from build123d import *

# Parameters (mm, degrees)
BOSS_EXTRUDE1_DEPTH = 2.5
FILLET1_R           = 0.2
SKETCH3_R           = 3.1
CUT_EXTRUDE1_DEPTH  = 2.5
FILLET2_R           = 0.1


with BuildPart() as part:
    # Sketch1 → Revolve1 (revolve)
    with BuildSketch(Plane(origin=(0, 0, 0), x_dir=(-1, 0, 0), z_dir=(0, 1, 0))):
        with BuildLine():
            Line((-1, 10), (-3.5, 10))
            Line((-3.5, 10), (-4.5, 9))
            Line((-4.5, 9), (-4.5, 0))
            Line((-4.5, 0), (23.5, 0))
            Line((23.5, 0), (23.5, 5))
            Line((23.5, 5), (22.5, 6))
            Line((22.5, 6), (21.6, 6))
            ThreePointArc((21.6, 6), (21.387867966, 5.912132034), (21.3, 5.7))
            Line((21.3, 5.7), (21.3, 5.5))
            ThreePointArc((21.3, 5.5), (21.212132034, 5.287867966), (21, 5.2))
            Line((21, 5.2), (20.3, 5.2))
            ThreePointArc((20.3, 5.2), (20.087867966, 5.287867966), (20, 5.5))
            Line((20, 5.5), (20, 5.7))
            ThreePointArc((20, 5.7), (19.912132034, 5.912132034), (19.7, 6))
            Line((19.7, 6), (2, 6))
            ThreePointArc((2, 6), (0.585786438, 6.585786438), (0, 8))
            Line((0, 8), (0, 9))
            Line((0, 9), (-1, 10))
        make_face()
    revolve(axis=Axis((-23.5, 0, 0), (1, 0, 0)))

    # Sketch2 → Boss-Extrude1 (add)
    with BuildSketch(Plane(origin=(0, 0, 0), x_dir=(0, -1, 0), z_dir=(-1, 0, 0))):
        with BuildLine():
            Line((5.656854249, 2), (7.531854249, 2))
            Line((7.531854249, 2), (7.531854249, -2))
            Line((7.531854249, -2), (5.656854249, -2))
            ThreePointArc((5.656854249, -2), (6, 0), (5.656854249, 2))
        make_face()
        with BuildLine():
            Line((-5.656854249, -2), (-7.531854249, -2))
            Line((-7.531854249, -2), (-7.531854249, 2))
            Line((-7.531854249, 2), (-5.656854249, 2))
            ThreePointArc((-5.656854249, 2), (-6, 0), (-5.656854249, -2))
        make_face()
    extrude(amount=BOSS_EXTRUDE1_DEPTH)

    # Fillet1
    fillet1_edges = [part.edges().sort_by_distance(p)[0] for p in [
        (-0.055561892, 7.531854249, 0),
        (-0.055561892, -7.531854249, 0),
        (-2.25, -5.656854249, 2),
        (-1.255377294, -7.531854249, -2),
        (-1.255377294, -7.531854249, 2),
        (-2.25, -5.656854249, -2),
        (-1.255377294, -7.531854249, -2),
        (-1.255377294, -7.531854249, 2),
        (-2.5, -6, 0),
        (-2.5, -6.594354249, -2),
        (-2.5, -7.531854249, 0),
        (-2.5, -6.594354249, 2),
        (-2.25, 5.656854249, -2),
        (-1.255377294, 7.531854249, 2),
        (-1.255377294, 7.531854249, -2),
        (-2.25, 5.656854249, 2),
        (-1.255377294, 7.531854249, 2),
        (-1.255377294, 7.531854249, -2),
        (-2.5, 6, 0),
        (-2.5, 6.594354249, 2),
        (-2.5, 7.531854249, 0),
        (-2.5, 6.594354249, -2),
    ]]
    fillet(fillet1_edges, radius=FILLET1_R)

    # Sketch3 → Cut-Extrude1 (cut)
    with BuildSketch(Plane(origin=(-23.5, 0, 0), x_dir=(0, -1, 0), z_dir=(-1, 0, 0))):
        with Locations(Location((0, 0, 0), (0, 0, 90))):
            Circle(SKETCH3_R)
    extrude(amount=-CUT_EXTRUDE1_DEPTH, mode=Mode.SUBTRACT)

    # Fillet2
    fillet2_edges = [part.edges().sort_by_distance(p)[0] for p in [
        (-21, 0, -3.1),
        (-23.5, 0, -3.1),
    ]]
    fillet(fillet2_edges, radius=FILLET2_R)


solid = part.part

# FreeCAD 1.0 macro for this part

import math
import FreeCAD as App
import Part
import Sketcher
from FreeCAD import Vector


def edges_at(feature, points):
    """Names of the edges that pass closest to the given points."""
    edges = feature.Shape.Edges
    near = lambda p: min(range(len(edges)), key=lambda i: edges[i].distToShape(Part.Vertex(*p))[0])
    return sorted({f"Edge{near(p) + 1}" for p in points})

doc = App.newDocument("Part")
body = doc.addObject("PartDesign::Body", "Body")

sketch1 = body.newObject("Sketcher::SketchObject", "Sketch")
sketch1.AttachmentSupport = (doc.getObject("XZ_Plane"), [""])
sketch1.MapMode = "FlatFace"
sketch1.addGeometry([
    Part.LineSegment(Vector(1, 10, 0), Vector(3.5, 10, 0)),
    Part.LineSegment(Vector(3.5, 10, 0), Vector(4.5, 9, 0)),
    Part.LineSegment(Vector(4.5, 9, 0), Vector(4.5, 0, 0)),
    Part.LineSegment(Vector(4.5, 0, 0), Vector(-23.5, 0, 0)),
    Part.LineSegment(Vector(-23.5, 0, 0), Vector(-23.5, 5, 0)),
    Part.LineSegment(Vector(-23.5, 5, 0), Vector(-22.5, 6, 0)),
    Part.LineSegment(Vector(-22.5, 6, 0), Vector(-21.6, 6, 0)),
    Part.ArcOfCircle(Part.Circle(Vector(-21.6, 5.7, 0), Vector(0, 0, 1), 0.3), math.radians(0), math.radians(90)),
    Part.LineSegment(Vector(-21.3, 5.7, 0), Vector(-21.3, 5.5, 0)),
    Part.ArcOfCircle(Part.Circle(Vector(-21, 5.5, 0), Vector(0, 0, 1), 0.3), math.radians(-180), math.radians(-90)),
    Part.LineSegment(Vector(-21, 5.2, 0), Vector(-20.3, 5.2, 0)),
    Part.ArcOfCircle(Part.Circle(Vector(-20.3, 5.5, 0), Vector(0, 0, 1), 0.3), math.radians(-90), math.radians(0)),
    Part.LineSegment(Vector(-20, 5.5, 0), Vector(-20, 5.7, 0)),
    Part.ArcOfCircle(Part.Circle(Vector(-19.7, 5.7, 0), Vector(0, 0, 1), 0.3), math.radians(90), math.radians(180)),
    Part.LineSegment(Vector(-19.7, 6, 0), Vector(-2, 6, 0)),
    Part.ArcOfCircle(Part.Circle(Vector(-2, 8, 0), Vector(0, 0, 1), 2), math.radians(-90), math.radians(0)),
    Part.LineSegment(Vector(0, 8, 0), Vector(0, 9, 0)),
    Part.LineSegment(Vector(0, 9, 0), Vector(1, 10, 0)),
], False)
sketch1.addConstraint([
    Sketcher.Constraint("Coincident", 0, 2, 1, 1),
    Sketcher.Constraint("Coincident", 1, 2, 2, 1),
    Sketcher.Constraint("Coincident", 2, 2, 3, 1),
    Sketcher.Constraint("Coincident", 3, 2, 4, 1),
    Sketcher.Constraint("Coincident", 4, 2, 5, 1),
    Sketcher.Constraint("Coincident", 5, 2, 6, 1),
    Sketcher.Constraint("Tangent", 6, 2, 7, 2),
    Sketcher.Constraint("Tangent", 7, 1, 8, 1),
    Sketcher.Constraint("Tangent", 8, 2, 9, 1),
    Sketcher.Constraint("Tangent", 9, 2, 10, 1),
    Sketcher.Constraint("Tangent", 10, 2, 11, 1),
    Sketcher.Constraint("Tangent", 11, 2, 12, 1),
    Sketcher.Constraint("Tangent", 12, 2, 13, 2),
    Sketcher.Constraint("Tangent", 13, 1, 14, 1),
    Sketcher.Constraint("Tangent", 14, 2, 15, 1),
    Sketcher.Constraint("Tangent", 15, 2, 16, 1),
    Sketcher.Constraint("Coincident", 16, 2, 17, 1),
    Sketcher.Constraint("Coincident", 17, 2, 0, 1),
    Sketcher.Constraint("Horizontal", 0),
    Sketcher.Constraint("Vertical", 2),
    Sketcher.Constraint("Horizontal", 3),
    Sketcher.Constraint("Vertical", 4),
    Sketcher.Constraint("Horizontal", 6),
    Sketcher.Constraint("Vertical", 8),
    Sketcher.Constraint("Horizontal", 10),
    Sketcher.Constraint("Vertical", 12),
    Sketcher.Constraint("Horizontal", 14),
    Sketcher.Constraint("Vertical", 16),
    Sketcher.Constraint("Equal", 7, 9),
    Sketcher.Constraint("Equal", 9, 11),
    Sketcher.Constraint("Equal", 11, 13),
    Sketcher.Constraint("PointOnObject", 2, 2, -1),
    Sketcher.Constraint("PointOnObject", 15, 2, -2),
    Sketcher.Constraint("Perpendicular", 1, 5),
    Sketcher.Constraint("Parallel", 5, 17),
    Sketcher.Constraint("Horizontal", 7, 3, 13, 3),
    Sketcher.Constraint("Horizontal", 1, 2, 16, 2),
    Sketcher.Constraint("Equal", 1, 5),
    Sketcher.Constraint("Equal", 5, 17),
    Sketcher.Constraint("Radius", 15, 2.0),
    Sketcher.Constraint("Radius", 7, 0.3),
    Sketcher.Constraint("DistanceX", 3, 2, 3, 1, 28.0),
    Sketcher.Constraint("DistanceY", 2, 2, 2, 1, 9.0),
    Sketcher.Constraint("DistanceY", 4, 1, 4, 2, 5.0),
    Sketcher.Constraint("DistanceY", 16, 1, 16, 2, 1.0),
    Sketcher.Constraint("DistanceX", 0, 1, 0, 2, 2.5),
    Sketcher.Constraint("DistanceX", 6, 1, 6, 2, 0.9),
    Sketcher.Constraint("DistanceX", 10, 1, 10, 2, 0.7),
    Sketcher.Constraint("DistanceY", 8, 2, 8, 1, 0.2),
])
revolution = body.newObject("PartDesign::Revolution", "Revolution")
revolution.Profile = sketch1
revolution.ReferenceAxis = (sketch1, ["H_Axis"])
revolution.Angle = 360

sketch2 = body.newObject("Sketcher::SketchObject", "Sketch001")
sketch2.AttachmentSupport = (doc.getObject("YZ_Plane"), [""])
sketch2.MapMode = "FlatFace"
sketch2.addGeometry([
    Part.LineSegment(Vector(-7.5, 2, 0), Vector(-5.7, 2, 0)),
    Part.ArcOfCircle(Part.Circle(Vector(0, 0, 0), Vector(0, 0, 1), 6), math.radians(161), math.radians(199)),
    Part.LineSegment(Vector(-5.7, -2, 0), Vector(-7.5, -2, 0)),
    Part.LineSegment(Vector(-7.5, -2, 0), Vector(-7.5, 2, 0)),
    Part.LineSegment(Vector(7.5, -2, 0), Vector(5.7, -2, 0)),
    Part.ArcOfCircle(Part.Circle(Vector(0, 0, 0), Vector(0, 0, 1), 6), math.radians(-19), math.radians(19)),
    Part.LineSegment(Vector(5.7, 2, 0), Vector(7.5, 2, 0)),
    Part.LineSegment(Vector(7.5, 2, 0), Vector(7.5, -2, 0)),
], False)
sketch2.addConstraint([
    Sketcher.Constraint("Coincident", 0, 2, 1, 1),
    Sketcher.Constraint("Coincident", 1, 2, 2, 1),
    Sketcher.Constraint("Coincident", 2, 2, 3, 1),
    Sketcher.Constraint("Coincident", 3, 2, 0, 1),
    Sketcher.Constraint("Coincident", 4, 2, 5, 1),
    Sketcher.Constraint("Coincident", 5, 2, 6, 1),
    Sketcher.Constraint("Coincident", 6, 2, 7, 1),
    Sketcher.Constraint("Coincident", 7, 2, 4, 1),
    Sketcher.Constraint("Horizontal", 0),
    Sketcher.Constraint("Horizontal", 2),
    Sketcher.Constraint("Vertical", 3),
    Sketcher.Constraint("Horizontal", 4),
    Sketcher.Constraint("Horizontal", 6),
    Sketcher.Constraint("Vertical", 7),
    Sketcher.Constraint("Coincident", 1, 3, -1, 1),
    Sketcher.Constraint("Coincident", 5, 3, -1, 1),
    Sketcher.Constraint("Equal", 1, 5),
    Sketcher.Constraint("Symmetric", 2, 2, 6, 2, -1, 1),
    Sketcher.Constraint("Horizontal", 2, 2, 4, 2),
    Sketcher.Constraint("Horizontal", 3, 2, 5, 2),
    Sketcher.Constraint("Radius", 1, 6.0),
    Sketcher.Constraint("DistanceY", 3, 1, 3, 2, 4.0),
    Sketcher.Constraint("DistanceX", 0, 1, 0, 2, 1.875),
])
pad1 = body.newObject("PartDesign::Pad", "Pad")
pad1.Profile = sketch2
pad1.Length = 2.5
pad1.Reversed = True
doc.recompute()

fillet = body.newObject("PartDesign::Fillet", "Fillet")
fillet.Base = (pad1, edges_at(pad1, [
    (-0.056, 7.532, 0),
    (-0.056, -7.532, 0),
    (-2.25, -5.657, 2),
    (-1.255, -7.532, -2),
    (-1.255, -7.532, 2),
    (-2.25, -5.657, -2),
    (-1.255, -7.532, -2),
    (-1.255, -7.532, 2),
    (-2.5, -6, 0),
    (-2.5, -6.594, -2),
    (-2.5, -7.532, 0),
    (-2.5, -6.594, 2),
    (-2.25, 5.657, -2),
    (-1.255, 7.532, 2),
    (-1.255, 7.532, -2),
    (-2.25, 5.657, 2),
    (-1.255, 7.532, 2),
    (-1.255, 7.532, -2),
    (-2.5, 6, 0),
    (-2.5, 6.594, 2),
    (-2.5, 7.532, 0),
    (-2.5, 6.594, -2),
]))
fillet.Radius = 0.2

sketch3 = body.newObject("Sketcher::SketchObject", "Sketch002")
sketch3.AttachmentSupport = (doc.getObject("YZ_Plane"), [""])
sketch3.MapMode = "FlatFace"
sketch3.AttachmentOffset = App.Placement(Vector(0, 0, -23.5), App.Rotation())
sketch3.addGeometry(Part.Circle(Vector(0, 0, 0), Vector(0, 0, 1), 3.1), False)
sketch3.addConstraint([
    Sketcher.Constraint("Coincident", 0, 3, -1, 1),
    Sketcher.Constraint("Diameter", 0, 6.2),
])
pocket1 = body.newObject("PartDesign::Pocket", "Pocket")
pocket1.Profile = sketch3
pocket1.Length = 2.5
pocket1.Reversed = True
doc.recompute()

fillet2 = body.newObject("PartDesign::Fillet", "Fillet001")
fillet2.Base = (pocket1, edges_at(pocket1, [(-21, 0, -3.1), (-23.5, 0, -3.1)]))
fillet2.Radius = 0.1

doc.recompute()
